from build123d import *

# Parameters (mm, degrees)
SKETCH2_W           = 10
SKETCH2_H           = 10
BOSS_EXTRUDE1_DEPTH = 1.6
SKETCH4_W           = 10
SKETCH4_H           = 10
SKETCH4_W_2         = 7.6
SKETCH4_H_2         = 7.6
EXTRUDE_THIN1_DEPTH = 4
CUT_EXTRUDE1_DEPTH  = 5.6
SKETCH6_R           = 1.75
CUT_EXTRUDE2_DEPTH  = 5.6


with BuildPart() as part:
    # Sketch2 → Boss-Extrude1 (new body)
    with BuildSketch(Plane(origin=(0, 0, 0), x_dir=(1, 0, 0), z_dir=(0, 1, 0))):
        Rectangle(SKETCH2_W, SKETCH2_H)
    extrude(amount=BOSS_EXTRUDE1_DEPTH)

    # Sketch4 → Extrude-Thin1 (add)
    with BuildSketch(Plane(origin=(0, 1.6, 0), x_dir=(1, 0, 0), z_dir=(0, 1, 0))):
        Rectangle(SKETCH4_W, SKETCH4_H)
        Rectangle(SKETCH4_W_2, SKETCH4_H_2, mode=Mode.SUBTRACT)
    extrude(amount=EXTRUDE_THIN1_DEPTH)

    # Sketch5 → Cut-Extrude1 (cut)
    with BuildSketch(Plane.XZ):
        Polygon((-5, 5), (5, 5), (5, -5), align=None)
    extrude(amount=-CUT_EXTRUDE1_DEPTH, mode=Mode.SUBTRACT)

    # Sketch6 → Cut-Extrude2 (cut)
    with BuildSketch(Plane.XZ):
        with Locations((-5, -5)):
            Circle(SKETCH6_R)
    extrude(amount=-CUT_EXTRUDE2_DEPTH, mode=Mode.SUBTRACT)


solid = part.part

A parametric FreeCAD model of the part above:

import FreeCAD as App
import Part
import Sketcher
from FreeCAD import Vector
Q = App.Units.Quantity

doc = App.newDocument("Part")
body = doc.addObject("PartDesign::Body", "Body")

sketch1 = body.newObject("Sketcher::SketchObject", "Sketch")
sketch1.AttachmentSupport = (doc.getObject("XZ_Plane"), [""])
sketch1.MapMode = "FlatFace"
sketch1.addGeometry([
    Part.LineSegment(Vector(-5, -5, 0), Vector(-5, 5, 0)),
    Part.LineSegment(Vector(-5, 5, 0), Vector(5, 5, 0)),
    Part.LineSegment(Vector(5, 5, 0), Vector(5, -5, 0)),
    Part.LineSegment(Vector(5, -5, 0), Vector(-5, -5, 0)),
], False)
sketch1.addConstraint([
    Sketcher.Constraint("Coincident", 0, 2, 1, 1),
    Sketcher.Constraint("Coincident", 1, 2, 2, 1),
    Sketcher.Constraint("Coincident", 2, 2, 3, 1),
    Sketcher.Constraint("Coincident", 3, 2, 0, 1),
    Sketcher.Constraint("Vertical", 0),
    Sketcher.Constraint("Horizontal", 1),
    Sketcher.Constraint("Vertical", 2),
    Sketcher.Constraint("Horizontal", 3),
    Sketcher.Constraint("Symmetric", 0, 2, 2, 2, -1, 1),
    Sketcher.Constraint("Equal", 3, 0),
    Sketcher.Constraint("DistanceX", 1, 1, 1, 2, Q("10 mm")),
])
pad1 = body.newObject("PartDesign::Pad", "Pad")
pad1.Profile = sketch1
pad1.Length = 1.6
pad1.Reversed = True

sketch2 = body.newObject("Sketcher::SketchObject", "Sketch001")
sketch2.AttachmentSupport = (doc.getObject("XZ_Plane"), [""])
sketch2.MapMode = "FlatFace"
sketch2.AttachmentOffset = App.Placement(Vector(0, 0, -1.6), App.Rotation())
sketch2.addGeometry([
    Part.LineSegment(Vector(-5, -5, 0), Vector(-5, 5, 0)),
    Part.LineSegment(Vector(-5, 5, 0), Vector(5, 5, 0)),
    Part.LineSegment(Vector(5, 5, 0), Vector(5, -5, 0)),
    Part.LineSegment(Vector(5, -5, 0), Vector(-5, -5, 0)),
    Part.LineSegment(Vector(4, 4, 0), Vector(-4, 4, 0)),
    Part.LineSegment(Vector(-4, 4, 0), Vector(-4, -4, 0)),
    Part.LineSegment(Vector(-4, -4, 0), Vector(4, -4, 0)),
    Part.LineSegment(Vector(4, -4, 0), Vector(4, 4, 0)),
], False)
sketch2.addConstraint([
    Sketcher.Constraint("Coincident", 0, 2, 1, 1),
    Sketcher.Constraint("Coincident", 1, 2, 2, 1),
    Sketcher.Constraint("Coincident", 2, 2, 3, 1),
    Sketcher.Constraint("Coincident", 3, 2, 0, 1),
    Sketcher.Constraint("Coincident", 4, 2, 5, 1),
    Sketcher.Constraint("Coincident", 5, 2, 6, 1),
    Sketcher.Constraint("Coincident", 6, 2, 7, 1),
    Sketcher.Constraint("Coincident", 7, 2, 4, 1),
    Sketcher.Constraint("Vertical", 0),
    Sketcher.Constraint("Horizontal", 1),
    Sketcher.Constraint("Vertical", 2),
    Sketcher.Constraint("Horizontal", 3),
    Sketcher.Constraint("Horizontal", 4),
    Sketcher.Constraint("Vertical", 5),
    Sketcher.Constraint("Horizontal", 6),
    Sketcher.Constraint("Vertical", 7),
    Sketcher.Constraint("Symmetric", 0, 2, 2, 2, -1, 1),
    Sketcher.Constraint("Symmetric", 4, 2, 6, 2, -1, 1),
    Sketcher.Constraint("Equal", 3, 0),
    Sketcher.Constraint("Equal", 6, 5),
    Sketcher.Constraint("DistanceX", 1, 1, 1, 2, Q("10 mm")),
    Sketcher.Constraint("DistanceX", 4, 2, 4, 1, Q("7.6 mm")),
])
pad2 = body.newObject("PartDesign::Pad", "Pad001")
pad2.Profile = sketch2
pad2.Length = 4
pad2.Reversed = True

sketch3 = body.newObject("Sketcher::SketchObject", "Sketch002")
sketch3.AttachmentSupport = (doc.getObject("XZ_Plane"), [""])
sketch3.MapMode = "FlatFace"
sketch3.addGeometry([
    Part.LineSegment(Vector(5, 5, 0), Vector(-5, 5, 0)),
    Part.LineSegment(Vector(-5, 5, 0), Vector(5, -5, 0)),
    Part.LineSegment(Vector(5, -5, 0), Vector(5, 5, 0)),
], False)
sketch3.addConstraint([
    Sketcher.Constraint("Coincident", 0, 2, 1, 1),
    Sketcher.Constraint("Coincident", 1, 2, 2, 1),
    Sketcher.Constraint("Coincident", 2, 2, 0, 1),
    Sketcher.Constraint("Horizontal", 0),
    Sketcher.Constraint("Vertical", 2),
    Sketcher.Constraint("Symmetric", 0, 2, 1, 2, -1, 1),
    Sketcher.Constraint("Equal", 0, 2),
    Sketcher.Constraint("DistanceX", 0, 2, 0, 1, Q("10 mm")),
])
pocket1 = body.newObject("PartDesign::Pocket", "Pocket")
pocket1.Profile = sketch3
pocket1.Length = 5.6

sketch4 = body.newObject("Sketcher::SketchObject", "Sketch003")
sketch4.AttachmentSupport = (doc.getObject("XZ_Plane"), [""])
sketch4.MapMode = "FlatFace"
sketch4.addGeometry(Part.Circle(Vector(-5, -5, 0), Vector(0, 0, 1), 1.8), False)
sketch4.addConstraint([
    Sketcher.Constraint("Diameter", 0, Q("3.5 mm")),
    Sketcher.Constraint("DistanceX", 0, 3, -1, 1, Q("5 mm")),
    Sketcher.Constraint("DistanceY", 0, 3, -1, 1, Q("5 mm")),
])
pocket2 = body.newObject("PartDesign::Pocket", "Pocket001")
pocket2.Profile = sketch4
pocket2.Length = 5.6

doc.recompute()
